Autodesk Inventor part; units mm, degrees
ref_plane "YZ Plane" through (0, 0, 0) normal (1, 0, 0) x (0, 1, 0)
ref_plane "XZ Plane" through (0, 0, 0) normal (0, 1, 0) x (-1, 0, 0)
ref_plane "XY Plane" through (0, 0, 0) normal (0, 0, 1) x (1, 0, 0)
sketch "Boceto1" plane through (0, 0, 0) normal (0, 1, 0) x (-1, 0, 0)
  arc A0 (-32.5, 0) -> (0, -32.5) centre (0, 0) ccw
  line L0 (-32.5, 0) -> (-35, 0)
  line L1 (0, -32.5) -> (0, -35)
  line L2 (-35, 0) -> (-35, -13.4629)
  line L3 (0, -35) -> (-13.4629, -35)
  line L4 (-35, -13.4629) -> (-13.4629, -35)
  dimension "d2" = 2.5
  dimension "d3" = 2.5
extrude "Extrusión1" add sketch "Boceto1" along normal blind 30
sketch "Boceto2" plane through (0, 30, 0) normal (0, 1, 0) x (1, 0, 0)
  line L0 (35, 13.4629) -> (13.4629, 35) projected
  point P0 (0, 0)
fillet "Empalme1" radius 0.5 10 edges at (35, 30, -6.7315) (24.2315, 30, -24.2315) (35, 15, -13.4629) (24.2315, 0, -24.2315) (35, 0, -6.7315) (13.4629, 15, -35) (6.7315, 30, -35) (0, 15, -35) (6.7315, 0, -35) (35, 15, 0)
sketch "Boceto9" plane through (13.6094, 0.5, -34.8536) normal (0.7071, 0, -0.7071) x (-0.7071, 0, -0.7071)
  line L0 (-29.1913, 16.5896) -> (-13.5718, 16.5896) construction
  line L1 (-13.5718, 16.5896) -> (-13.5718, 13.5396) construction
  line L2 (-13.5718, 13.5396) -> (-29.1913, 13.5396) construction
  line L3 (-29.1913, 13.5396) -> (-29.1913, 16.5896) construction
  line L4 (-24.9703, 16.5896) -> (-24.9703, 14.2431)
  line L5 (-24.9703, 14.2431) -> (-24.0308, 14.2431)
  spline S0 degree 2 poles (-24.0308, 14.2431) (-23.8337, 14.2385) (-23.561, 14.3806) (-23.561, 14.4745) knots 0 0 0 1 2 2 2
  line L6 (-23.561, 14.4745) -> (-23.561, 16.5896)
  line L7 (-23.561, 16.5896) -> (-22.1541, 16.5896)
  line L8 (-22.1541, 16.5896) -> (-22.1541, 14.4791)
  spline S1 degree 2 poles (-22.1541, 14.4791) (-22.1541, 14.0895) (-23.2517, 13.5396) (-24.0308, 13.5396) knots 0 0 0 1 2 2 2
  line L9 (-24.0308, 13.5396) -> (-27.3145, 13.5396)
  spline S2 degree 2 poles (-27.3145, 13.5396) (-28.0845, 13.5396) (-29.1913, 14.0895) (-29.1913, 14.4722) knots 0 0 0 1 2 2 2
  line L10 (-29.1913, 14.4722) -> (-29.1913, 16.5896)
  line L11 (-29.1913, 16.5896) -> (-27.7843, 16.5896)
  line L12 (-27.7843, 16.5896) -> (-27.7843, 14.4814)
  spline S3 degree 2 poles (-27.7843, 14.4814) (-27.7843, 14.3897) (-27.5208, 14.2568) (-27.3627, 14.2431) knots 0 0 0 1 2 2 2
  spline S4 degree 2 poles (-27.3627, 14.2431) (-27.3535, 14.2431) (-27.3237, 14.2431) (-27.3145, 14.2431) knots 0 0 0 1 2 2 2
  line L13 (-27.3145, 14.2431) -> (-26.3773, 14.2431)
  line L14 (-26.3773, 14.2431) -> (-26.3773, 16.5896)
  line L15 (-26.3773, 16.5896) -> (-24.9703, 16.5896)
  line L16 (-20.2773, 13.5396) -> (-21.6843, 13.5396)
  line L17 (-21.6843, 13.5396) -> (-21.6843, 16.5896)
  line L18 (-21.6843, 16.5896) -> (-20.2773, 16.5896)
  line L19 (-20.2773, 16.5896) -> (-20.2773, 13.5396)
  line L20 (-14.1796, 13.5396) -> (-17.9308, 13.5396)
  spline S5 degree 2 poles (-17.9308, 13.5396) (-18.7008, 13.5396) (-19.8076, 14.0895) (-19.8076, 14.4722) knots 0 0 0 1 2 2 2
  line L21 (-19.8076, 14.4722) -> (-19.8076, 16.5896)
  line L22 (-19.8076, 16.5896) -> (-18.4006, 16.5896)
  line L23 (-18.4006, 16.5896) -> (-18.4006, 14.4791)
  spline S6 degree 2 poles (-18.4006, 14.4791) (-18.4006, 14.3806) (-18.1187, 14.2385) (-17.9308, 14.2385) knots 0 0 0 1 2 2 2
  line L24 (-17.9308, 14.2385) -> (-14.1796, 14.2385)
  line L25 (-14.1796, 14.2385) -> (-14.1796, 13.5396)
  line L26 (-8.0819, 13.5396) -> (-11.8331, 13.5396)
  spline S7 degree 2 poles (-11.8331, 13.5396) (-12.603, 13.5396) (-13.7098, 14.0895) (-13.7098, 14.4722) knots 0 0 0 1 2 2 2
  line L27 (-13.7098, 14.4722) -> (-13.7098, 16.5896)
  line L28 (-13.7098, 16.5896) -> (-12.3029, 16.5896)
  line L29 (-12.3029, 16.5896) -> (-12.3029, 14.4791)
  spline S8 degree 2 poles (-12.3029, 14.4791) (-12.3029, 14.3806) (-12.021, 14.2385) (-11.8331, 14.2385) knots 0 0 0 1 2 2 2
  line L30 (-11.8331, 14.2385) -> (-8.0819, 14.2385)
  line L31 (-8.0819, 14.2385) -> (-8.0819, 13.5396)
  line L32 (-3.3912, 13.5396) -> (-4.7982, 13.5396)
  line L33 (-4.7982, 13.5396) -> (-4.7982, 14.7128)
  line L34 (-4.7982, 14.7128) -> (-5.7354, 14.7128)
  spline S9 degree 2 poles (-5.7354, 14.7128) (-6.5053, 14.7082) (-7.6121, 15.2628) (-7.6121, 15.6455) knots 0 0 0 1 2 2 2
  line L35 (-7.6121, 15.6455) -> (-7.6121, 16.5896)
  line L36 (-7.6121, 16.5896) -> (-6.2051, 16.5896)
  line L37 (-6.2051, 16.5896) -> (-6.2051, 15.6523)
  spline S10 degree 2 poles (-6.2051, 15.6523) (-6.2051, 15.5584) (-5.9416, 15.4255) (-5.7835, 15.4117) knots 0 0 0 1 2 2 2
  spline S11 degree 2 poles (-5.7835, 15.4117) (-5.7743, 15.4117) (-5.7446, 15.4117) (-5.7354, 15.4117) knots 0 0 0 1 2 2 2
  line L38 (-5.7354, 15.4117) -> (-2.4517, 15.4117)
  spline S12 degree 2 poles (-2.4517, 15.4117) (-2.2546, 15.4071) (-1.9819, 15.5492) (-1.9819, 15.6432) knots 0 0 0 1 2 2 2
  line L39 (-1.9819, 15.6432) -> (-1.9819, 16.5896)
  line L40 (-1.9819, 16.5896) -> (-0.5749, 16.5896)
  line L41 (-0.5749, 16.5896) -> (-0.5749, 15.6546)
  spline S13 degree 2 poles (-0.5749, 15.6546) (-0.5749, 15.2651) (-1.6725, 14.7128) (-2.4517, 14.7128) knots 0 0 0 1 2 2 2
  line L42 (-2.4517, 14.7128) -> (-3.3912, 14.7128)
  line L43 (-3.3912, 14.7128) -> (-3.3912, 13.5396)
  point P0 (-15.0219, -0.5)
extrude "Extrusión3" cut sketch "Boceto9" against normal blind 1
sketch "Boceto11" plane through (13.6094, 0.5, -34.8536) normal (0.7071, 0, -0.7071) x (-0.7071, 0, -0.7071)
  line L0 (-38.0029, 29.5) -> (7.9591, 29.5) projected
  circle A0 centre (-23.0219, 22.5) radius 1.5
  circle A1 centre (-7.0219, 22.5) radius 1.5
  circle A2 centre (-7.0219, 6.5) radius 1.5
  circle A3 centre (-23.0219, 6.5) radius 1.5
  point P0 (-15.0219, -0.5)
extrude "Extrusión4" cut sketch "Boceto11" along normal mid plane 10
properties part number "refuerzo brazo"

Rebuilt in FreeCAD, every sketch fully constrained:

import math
import FreeCAD as App
import Part
import Sketcher

V = App.Vector


def edges_at(feature, points):
    """Names of the edges that pass closest to the given points."""
    edges = feature.Shape.Edges
    near = lambda p: min(range(len(edges)), key=lambda i: edges[i].distToShape(Part.Vertex(*p))[0])
    return sorted({f"Edge{near(p) + 1}" for p in points})


def add_polygon(sketch, points):
    """Adds a closed chain of lines whose ends are joined by coincident constraints."""
    first, n = sketch.GeometryCount, len(points)
    for a, b in zip(points, points[1:] + points[:1]):
        sketch.addGeometry(Part.LineSegment(App.Vector(*a, 0), App.Vector(*b, 0)), False)
    for i in range(n):
        sketch.addConstraint(Sketcher.Constraint("Coincident", first + i, 2, first + (i + 1) % n, 1))

doc = App.newDocument("Part")
body = doc.addObject("PartDesign::Body", "Body")

# Sketch on XZ plane
sketch1 = doc.addObject("Sketcher::SketchObject", "Sketch")
body.addObject(sketch1)
sketch1.AttachmentSupport = (doc.XZ_Plane, [""])
sketch1.MapMode = "FlatFace"
sketch1.addGeometry(Part.ArcOfCircle(Part.Circle(V(0, 0, 0), V(0, 0, 1), 32.5), math.radians(-90), math.radians(0)), False)
sketch1.addGeometry(Part.LineSegment(V(32.5, 0, 0), V(35, 0, 0)), False)
sketch1.addGeometry(Part.LineSegment(V(35, 0, 0), V(35, -13.5, 0)), False)
sketch1.addGeometry(Part.LineSegment(V(35, -13.5, 0), V(13.5, -35, 0)), False)
sketch1.addGeometry(Part.LineSegment(V(13.5, -35, 0), V(0, -35, 0)), False)
sketch1.addGeometry(Part.LineSegment(V(0, -35, 0), V(0, -32.5, 0)), False)
sketch1.addConstraint(Sketcher.Constraint("Coincident", 0, 2, 1, 1))
sketch1.addConstraint(Sketcher.Constraint("Coincident", 1, 2, 2, 1))
sketch1.addConstraint(Sketcher.Constraint("Coincident", 2, 2, 3, 1))
sketch1.addConstraint(Sketcher.Constraint("Coincident", 3, 2, 4, 1))
sketch1.addConstraint(Sketcher.Constraint("Coincident", 4, 2, 5, 1))
sketch1.addConstraint(Sketcher.Constraint("Coincident", 5, 2, 0, 1))
sketch1.addConstraint(Sketcher.Constraint("Horizontal", 1))
sketch1.addConstraint(Sketcher.Constraint("Vertical", 2))
sketch1.addConstraint(Sketcher.Constraint("Horizontal", 4))
sketch1.addConstraint(Sketcher.Constraint("Vertical", 5))
sketch1.addConstraint(Sketcher.Constraint("Coincident", 0, 3, -1, 1))
sketch1.addConstraint(Sketcher.Constraint("PointOnObject", 0, 2, -1))
sketch1.addConstraint(Sketcher.Constraint("PointOnObject", 4, 2, -2))
sketch1.addConstraint(Sketcher.Constraint("Equal", 4, 2))
sketch1.addConstraint(Sketcher.Constraint("Equal", 1, 5))
sketch1.addConstraint(Sketcher.Constraint("DistanceX", 1, 1, 1, 2, 2.5))
sketch1.addConstraint(Sketcher.Constraint("Radius", 0, 32.5))
sketch1.addConstraint(Sketcher.Constraint("DistanceX", 4, 2, 4, 1, 13.463))
pad1 = doc.addObject("PartDesign::Pad", "Pad")
body.addObject(pad1)
pad1.Profile = sketch1
pad1.Length = 30
pad1.Reversed = True
doc.recompute()

fillet = doc.addObject("PartDesign::Fillet", "Fillet")
body.addObject(fillet)
fillet.Base = (pad1, edges_at(pad1, [
    (35, 30, -6.731),
    (24.232, 30, -24.232),
    (35, 15, -13.463),
    (24.232, 0, -24.232),
    (35, 0, -6.731),
    (13.463, 15, -35),
    (6.731, 30, -35),
    (0, 15, -35),
    (6.731, 0, -35),
    (35, 15, 0),
]))
fillet.Radius = 0.5

# Sketch on an angled plane
sketch2 = doc.addObject("Sketcher::SketchObject", "Sketch001")
body.addObject(sketch2)
sketch2.Placement = App.Placement(V(13.6094, 0.5, -34.8536), App.Rotation(V(-0.707106781, 0, -0.707106781), V(0, 0.999999999, 0), V(0.707106781, 0, -0.707106781), "ZXY"))
sketch2.addGeometry(Part.LineSegment(V(-24.9703, 14.2431, 0), V(-24.9703, 16.5896, 0)), False)  # 0
sketch2.addGeometry(Part.LineSegment(V(-24.9703, 16.5896, 0), V(-26.3773, 16.5896, 0)), False)  # 1
sketch2.addGeometry(Part.LineSegment(V(-26.3773, 16.5896, 0), V(-26.3773, 14.2431, 0)), False)  # 2
sketch2.addGeometry(Part.LineSegment(V(-26.3773, 14.2431, 0), V(-27.3145, 14.2431, 0)), False)  # 3
sketch2.addGeometry(Part.BSplineCurve([V(-27.3627, 14.2431, 0), V(-27.3535, 14.2431, 0), V(-27.3237, 14.2431, 0), V(-27.3145, 14.2431, 0)], [3, 1, 3], [0, 1, 2], False, 2, [1, 1, 1, 1], False), False)  # 4
sketch2.addGeometry(Part.BSplineCurve([V(-27.7843, 14.4814, 0), V(-27.7843, 14.3897, 0), V(-27.5208, 14.2568, 0), V(-27.3627, 14.2431, 0)], [3, 1, 3], [0, 1, 2], False, 2, [1, 1, 1, 1], False), False)  # 5
sketch2.addGeometry(Part.LineSegment(V(-27.7843, 14.4814, 0), V(-27.7843, 16.5896, 0)), False)  # 6
sketch2.addGeometry(Part.LineSegment(V(-27.7843, 16.5896, 0), V(-29.1913, 16.5896, 0)), False)  # 7
sketch2.addGeometry(Part.LineSegment(V(-29.1913, 16.5896, 0), V(-29.1913, 14.4722, 0)), False)  # 8
sketch2.addGeometry(Part.BSplineCurve([V(-27.3145, 13.5396, 0), V(-28.0845, 13.5396, 0), V(-29.1913, 14.0895, 0), V(-29.1913, 14.4722, 0)], [3, 1, 3], [0, 1, 2], False, 2, [1, 1, 1, 1], False), False)  # 9
sketch2.addGeometry(Part.LineSegment(V(-27.3145, 13.5396, 0), V(-24.0308, 13.5396, 0)), False)  # 10
sketch2.addGeometry(Part.BSplineCurve([V(-22.1541, 14.4791, 0), V(-22.1541, 14.0895, 0), V(-23.2517, 13.5396, 0), V(-24.0308, 13.5396, 0)], [3, 1, 3], [0, 1, 2], False, 2, [1, 1, 1, 1], False), False)  # 11
sketch2.addGeometry(Part.LineSegment(V(-22.1541, 14.4791, 0), V(-22.1541, 16.5896, 0)), False)  # 12
sketch2.addGeometry(Part.LineSegment(V(-22.1541, 16.5896, 0), V(-23.561, 16.5896, 0)), False)  # 13
sketch2.addGeometry(Part.LineSegment(V(-23.561, 16.5896, 0), V(-23.561, 14.4745, 0)), False)  # 14
sketch2.addGeometry(Part.BSplineCurve([V(-24.0308, 14.2431, 0), V(-23.8337, 14.2385, 0), V(-23.561, 14.3806, 0), V(-23.561, 14.4745, 0)], [3, 1, 3], [0, 1, 2], False, 2, [1, 1, 1, 1], False), False)  # 15
sketch2.addGeometry(Part.LineSegment(V(-24.0308, 14.2431, 0), V(-24.9703, 14.2431, 0)), False)  # 16
add_polygon(sketch2, [(-21.6843, 13.5396), (-20.2773, 13.5396), (-20.2773, 16.5896), (-21.6843, 16.5896)])  # lines 17-20
sketch2.addGeometry(Part.LineSegment(V(-17.9308, 13.5396, 0), V(-14.1796, 13.5396, 0)), False)  # 21
sketch2.addGeometry(Part.LineSegment(V(-14.1796, 13.5396, 0), V(-14.1796, 14.2385, 0)), False)  # 22
sketch2.addGeometry(Part.LineSegment(V(-14.1796, 14.2385, 0), V(-17.9308, 14.2385, 0)), False)  # 23
sketch2.addGeometry(Part.BSplineCurve([V(-18.4006, 14.4791, 0), V(-18.4006, 14.3806, 0), V(-18.1187, 14.2385, 0), V(-17.9308, 14.2385, 0)], [3, 1, 3], [0, 1, 2], False, 2, [1, 1, 1, 1], False), False)  # 24
sketch2.addGeometry(Part.LineSegment(V(-18.4006, 14.4791, 0), V(-18.4006, 16.5896, 0)), False)  # 25
sketch2.addGeometry(Part.LineSegment(V(-18.4006, 16.5896, 0), V(-19.8076, 16.5896, 0)), False)  # 26
sketch2.addGeometry(Part.LineSegment(V(-19.8076, 16.5896, 0), V(-19.8076, 14.4722, 0)), False)  # 27
sketch2.addGeometry(Part.BSplineCurve([V(-17.9308, 13.5396, 0), V(-18.7008, 13.5396, 0), V(-19.8076, 14.0895, 0), V(-19.8076, 14.4722, 0)], [3, 1, 3], [0, 1, 2], False, 2, [1, 1, 1, 1], False), False)  # 28
sketch2.addGeometry(Part.LineSegment(V(-11.8331, 13.5396, 0), V(-8.0819, 13.5396, 0)), False)  # 29
sketch2.addGeometry(Part.LineSegment(V(-8.0819, 13.5396, 0), V(-8.0819, 14.2385, 0)), False)  # 30
sketch2.addGeometry(Part.LineSegment(V(-8.0819, 14.2385, 0), V(-11.8331, 14.2385, 0)), False)  # 31
sketch2.addGeometry(Part.BSplineCurve([V(-12.3029, 14.4791, 0), V(-12.3029, 14.3806, 0), V(-12.021, 14.2385, 0), V(-11.8331, 14.2385, 0)], [3, 1, 3], [0, 1, 2], False, 2, [1, 1, 1, 1], False), False)  # 32
sketch2.addGeometry(Part.LineSegment(V(-12.3029, 14.4791, 0), V(-12.3029, 16.5896, 0)), False)  # 33
sketch2.addGeometry(Part.LineSegment(V(-12.3029, 16.5896, 0), V(-13.7098, 16.5896, 0)), False)  # 34
sketch2.addGeometry(Part.LineSegment(V(-13.7098, 16.5896, 0), V(-13.7098, 14.4722, 0)), False)  # 35
sketch2.addGeometry(Part.BSplineCurve([V(-11.8331, 13.5396, 0), V(-12.603, 13.5396, 0), V(-13.7098, 14.0895, 0), V(-13.7098, 14.4722, 0)], [3, 1, 3], [0, 1, 2], False, 2, [1, 1, 1, 1], False), False)  # 36
sketch2.addGeometry(Part.LineSegment(V(-4.7982, 13.5396, 0), V(-3.3912, 13.5396, 0)), False)  # 37
sketch2.addGeometry(Part.LineSegment(V(-3.3912, 13.5396, 0), V(-3.3912, 14.7128, 0)), False)  # 38
sketch2.addGeometry(Part.LineSegment(V(-3.3912, 14.7128, 0), V(-2.4517, 14.7128, 0)), False)  # 39
sketch2.addGeometry(Part.BSplineCurve([V(-0.5749, 15.6546, 0), V(-0.5749, 15.2651, 0), V(-1.6725, 14.7128, 0), V(-2.4517, 14.7128, 0)], [3, 1, 3], [0, 1, 2], False, 2, [1, 1, 1, 1], False), False)  # 40
sketch2.addGeometry(Part.LineSegment(V(-0.5749, 15.6546, 0), V(-0.5749, 16.5896, 0)), False)  # 41
sketch2.addGeometry(Part.LineSegment(V(-0.5749, 16.5896, 0), V(-1.9819, 16.5896, 0)), False)  # 42
sketch2.addGeometry(Part.LineSegment(V(-1.9819, 16.5896, 0), V(-1.9819, 15.6432, 0)), False)  # 43
sketch2.addGeometry(Part.BSplineCurve([V(-2.4517, 15.4117, 0), V(-2.2546, 15.4071, 0), V(-1.9819, 15.5492, 0), V(-1.9819, 15.6432, 0)], [3, 1, 3], [0, 1, 2], False, 2, [1, 1, 1, 1], False), False)  # 44
sketch2.addGeometry(Part.LineSegment(V(-2.4517, 15.4117, 0), V(-5.7354, 15.4117, 0)), False)  # 45
sketch2.addGeometry(Part.BSplineCurve([V(-5.7835, 15.4117, 0), V(-5.7743, 15.4117, 0), V(-5.7446, 15.4117, 0), V(-5.7354, 15.4117, 0)], [3, 1, 3], [0, 1, 2], False, 2, [1, 1, 1, 1], False), False)  # 46
sketch2.addGeometry(Part.BSplineCurve([V(-6.2051, 15.6523, 0), V(-6.2051, 15.5584, 0), V(-5.9416, 15.4255, 0), V(-5.7835, 15.4117, 0)], [3, 1, 3], [0, 1, 2], False, 2, [1, 1, 1, 1], False), False)  # 47
sketch2.addGeometry(Part.LineSegment(V(-6.2051, 15.6523, 0), V(-6.2051, 16.5896, 0)), False)  # 48
sketch2.addGeometry(Part.LineSegment(V(-6.2051, 16.5896, 0), V(-7.6121, 16.5896, 0)), False)  # 49
sketch2.addGeometry(Part.LineSegment(V(-7.6121, 16.5896, 0), V(-7.6121, 15.6455, 0)), False)  # 50
sketch2.addGeometry(Part.BSplineCurve([V(-5.7354, 14.7128, 0), V(-6.5053, 14.7082, 0), V(-7.6121, 15.2628, 0), V(-7.6121, 15.6455, 0)], [3, 1, 3], [0, 1, 2], False, 2, [1, 1, 1, 1], False), False)  # 51
sketch2.addGeometry(Part.LineSegment(V(-5.7354, 14.7128, 0), V(-4.7982, 14.7128, 0)), False)  # 52
sketch2.addGeometry(Part.LineSegment(V(-4.7982, 14.7128, 0), V(-4.7982, 13.5396, 0)), False)  # 53
sketch2.addConstraint(Sketcher.Constraint("Block", 4))
sketch2.addConstraint(Sketcher.Constraint("Block", 5))
sketch2.addConstraint(Sketcher.Constraint("Block", 9))
sketch2.addConstraint(Sketcher.Constraint("Block", 11))
sketch2.addConstraint(Sketcher.Constraint("Block", 15))
sketch2.addConstraint(Sketcher.Constraint("Block", 24))
sketch2.addConstraint(Sketcher.Constraint("Block", 28))
sketch2.addConstraint(Sketcher.Constraint("Block", 32))
sketch2.addConstraint(Sketcher.Constraint("Block", 36))
sketch2.addConstraint(Sketcher.Constraint("Block", 40))
sketch2.addConstraint(Sketcher.Constraint("Block", 44))
sketch2.addConstraint(Sketcher.Constraint("Block", 46))
sketch2.addConstraint(Sketcher.Constraint("Block", 47))
sketch2.addConstraint(Sketcher.Constraint("Block", 51))
sketch2.addConstraint(Sketcher.Constraint("Coincident", 0, 2, 1, 1))
sketch2.addConstraint(Sketcher.Constraint("Coincident", 1, 2, 2, 1))
sketch2.addConstraint(Sketcher.Constraint("Coincident", 2, 2, 3, 1))
sketch2.addConstraint(Sketcher.Constraint("Coincident", 3, 2, 4, 2))
sketch2.addConstraint(Sketcher.Constraint("Coincident", 5, 1, 6, 1))
sketch2.addConstraint(Sketcher.Constraint("Coincident", 6, 2, 7, 1))
sketch2.addConstraint(Sketcher.Constraint("Coincident", 7, 2, 8, 1))
sketch2.addConstraint(Sketcher.Constraint("Coincident", 8, 2, 9, 2))
sketch2.addConstraint(Sketcher.Constraint("Coincident", 9, 1, 10, 1))
sketch2.addConstraint(Sketcher.Constraint("Coincident", 10, 2, 11, 2))
sketch2.addConstraint(Sketcher.Constraint("Coincident", 11, 1, 12, 1))
sketch2.addConstraint(Sketcher.Constraint("Coincident", 12, 2, 13, 1))
sketch2.addConstraint(Sketcher.Constraint("Coincident", 13, 2, 14, 1))
sketch2.addConstraint(Sketcher.Constraint("Coincident", 14, 2, 15, 2))
sketch2.addConstraint(Sketcher.Constraint("Coincident", 15, 1, 16, 1))
sketch2.addConstraint(Sketcher.Constraint("Coincident", 16, 2, 0, 1))
sketch2.addConstraint(Sketcher.Constraint("Coincident", 21, 2, 22, 1))
sketch2.addConstraint(Sketcher.Constraint("Coincident", 22, 2, 23, 1))
sketch2.addConstraint(Sketcher.Constraint("Coincident", 23, 2, 24, 2))
sketch2.addConstraint(Sketcher.Constraint("Coincident", 24, 1, 25, 1))
sketch2.addConstraint(Sketcher.Constraint("Coincident", 25, 2, 26, 1))
sketch2.addConstraint(Sketcher.Constraint("Coincident", 26, 2, 27, 1))
sketch2.addConstraint(Sketcher.Constraint("Coincident", 27, 2, 28, 2))
sketch2.addConstraint(Sketcher.Constraint("Coincident", 28, 1, 21, 1))
sketch2.addConstraint(Sketcher.Constraint("Coincident", 29, 2, 30, 1))
sketch2.addConstraint(Sketcher.Constraint("Coincident", 30, 2, 31, 1))
sketch2.addConstraint(Sketcher.Constraint("Coincident", 31, 2, 32, 2))
sketch2.addConstraint(Sketcher.Constraint("Coincident", 32, 1, 33, 1))
sketch2.addConstraint(Sketcher.Constraint("Coincident", 33, 2, 34, 1))
sketch2.addConstraint(Sketcher.Constraint("Coincident", 34, 2, 35, 1))
sketch2.addConstraint(Sketcher.Constraint("Coincident", 35, 2, 36, 2))
sketch2.addConstraint(Sketcher.Constraint("Coincident", 36, 1, 29, 1))
sketch2.addConstraint(Sketcher.Constraint("Coincident", 37, 2, 38, 1))
sketch2.addConstraint(Sketcher.Constraint("Coincident", 38, 2, 39, 1))
sketch2.addConstraint(Sketcher.Constraint("Coincident", 39, 2, 40, 2))
sketch2.addConstraint(Sketcher.Constraint("Coincident", 40, 1, 41, 1))
sketch2.addConstraint(Sketcher.Constraint("Coincident", 41, 2, 42, 1))
sketch2.addConstraint(Sketcher.Constraint("Coincident", 42, 2, 43, 1))
sketch2.addConstraint(Sketcher.Constraint("Coincident", 43, 2, 44, 2))
sketch2.addConstraint(Sketcher.Constraint("Coincident", 44, 1, 45, 1))
sketch2.addConstraint(Sketcher.Constraint("Coincident", 45, 2, 46, 2))
sketch2.addConstraint(Sketcher.Constraint("Coincident", 47, 1, 48, 1))
sketch2.addConstraint(Sketcher.Constraint("Coincident", 48, 2, 49, 1))
sketch2.addConstraint(Sketcher.Constraint("Coincident", 49, 2, 50, 1))
sketch2.addConstraint(Sketcher.Constraint("Coincident", 50, 2, 51, 2))
sketch2.addConstraint(Sketcher.Constraint("Coincident", 51, 1, 52, 1))
sketch2.addConstraint(Sketcher.Constraint("Coincident", 52, 2, 53, 1))
sketch2.addConstraint(Sketcher.Constraint("Coincident", 53, 2, 37, 1))
sketch2.addConstraint(Sketcher.Constraint("Vertical", 0))
sketch2.addConstraint(Sketcher.Constraint("Horizontal", 1))
sketch2.addConstraint(Sketcher.Constraint("Vertical", 2))
sketch2.addConstraint(Sketcher.Constraint("Horizontal", 3))
sketch2.addConstraint(Sketcher.Constraint("Vertical", 6))
sketch2.addConstraint(Sketcher.Constraint("Horizontal", 7))
sketch2.addConstraint(Sketcher.Constraint("Vertical", 8))
sketch2.addConstraint(Sketcher.Constraint("Vertical", 12))
sketch2.addConstraint(Sketcher.Constraint("Horizontal", 13))
sketch2.addConstraint(Sketcher.Constraint("Vertical", 14))
sketch2.addConstraint(Sketcher.Constraint("Horizontal", 16))
sketch2.addConstraint(Sketcher.Constraint("Horizontal", 17))
sketch2.addConstraint(Sketcher.Constraint("Vertical", 18))
sketch2.addConstraint(Sketcher.Constraint("Horizontal", 19))
sketch2.addConstraint(Sketcher.Constraint("Vertical", 20))
sketch2.addConstraint(Sketcher.Constraint("Horizontal", 21))
sketch2.addConstraint(Sketcher.Constraint("Vertical", 22))
sketch2.addConstraint(Sketcher.Constraint("Horizontal", 23))
sketch2.addConstraint(Sketcher.Constraint("Vertical", 25))
sketch2.addConstraint(Sketcher.Constraint("Horizontal", 26))
sketch2.addConstraint(Sketcher.Constraint("Vertical", 27))
sketch2.addConstraint(Sketcher.Constraint("Horizontal", 29))
sketch2.addConstraint(Sketcher.Constraint("Vertical", 30))
sketch2.addConstraint(Sketcher.Constraint("Horizontal", 31))
sketch2.addConstraint(Sketcher.Constraint("Vertical", 33))
sketch2.addConstraint(Sketcher.Constraint("Horizontal", 34))
sketch2.addConstraint(Sketcher.Constraint("Vertical", 35))
sketch2.addConstraint(Sketcher.Constraint("Horizontal", 37))
sketch2.addConstraint(Sketcher.Constraint("Vertical", 38))
sketch2.addConstraint(Sketcher.Constraint("Horizontal", 39))
sketch2.addConstraint(Sketcher.Constraint("Vertical", 41))
sketch2.addConstraint(Sketcher.Constraint("Horizontal", 42))
sketch2.addConstraint(Sketcher.Constraint("Vertical", 43))
sketch2.addConstraint(Sketcher.Constraint("Vertical", 48))
sketch2.addConstraint(Sketcher.Constraint("Horizontal", 49))
sketch2.addConstraint(Sketcher.Constraint("Vertical", 50))
sketch2.addConstraint(Sketcher.Constraint("Horizontal", 52))
sketch2.addConstraint(Sketcher.Constraint("Vertical", 53))
sketch2.addConstraint(Sketcher.Constraint("DistanceY", 18, 1, 18, 2, 3.05))
sketch2.addConstraint(Sketcher.Constraint("DistanceX", 30, 2, 42, 2, 6.1))
sketch2.addConstraint(Sketcher.Constraint("DistanceX", 1, 2, 1, 1, 1.407))
sketch2.addConstraint(Sketcher.Constraint("DistanceX", 17, 1, 17, 2, 1.407))
sketch2.addConstraint(Sketcher.Constraint("DistanceX", 37, 1, 37, 2, 1.407))
sketch2.addConstraint(Sketcher.Constraint("DistanceY", 14, 2, 14, 1, 2.115))
sketch2.addConstraint(Sketcher.Constraint("DistanceY", 41, 1, 41, 2, 0.935))
sketch2.addConstraint(Sketcher.Constraint("DistanceY", 50, 2, 50, 1, 0.944))
sketch2.addConstraint(Sketcher.Constraint("DistanceY", 10, 2, 0, 2, 3.05))
sketch2.addConstraint(Sketcher.Constraint("DistanceY", 10, 2, 6, 2, 3.05))
sketch2.addConstraint(Sketcher.Constraint("DistanceY", 17, 2, 12, 2, 3.05))
sketch2.addConstraint(Sketcher.Constraint("DistanceY", 17, 2, 25, 2, 3.05))
sketch2.addConstraint(Sketcher.Constraint("DistanceY", 21, 2, 33, 2, 3.05))
sketch2.addConstraint(Sketcher.Constraint("DistanceY", 37, 2, 33, 2, 3.05))
sketch2.addConstraint(Sketcher.Constraint("DistanceX", 3, 2, 3, 1, 0.9372))
sketch2.addConstraint(Sketcher.Constraint("DistanceX", 21, 1, 21, 2, 3.7512))
sketch2.addConstraint(Sketcher.Constraint("DistanceX", 39, 1, 39, 2, 0.9395))
sketch2.addConstraint(Sketcher.Constraint("DistanceX", 16, 2, 17, 2, 4.693))
pocket1 = doc.addObject("PartDesign::Pocket", "Pocket")
body.addObject(pocket1)
pocket1.Profile = sketch2
pocket1.Length = 1

# Sketch on an angled plane
sketch3 = doc.addObject("Sketcher::SketchObject", "Sketch002")
body.addObject(sketch3)
sketch3.Placement = App.Placement(V(13.6094, 0.5, -34.8536), App.Rotation(V(-0.707106781, 0, -0.707106781), V(0, 0.999999999, 0), V(0.707106781, 0, -0.707106781), "ZXY"))
sketch3.addGeometry(Part.Circle(V(-23, 22.5, 0), V(0, 0, 1), 1.5), False)
sketch3.addGeometry(Part.Circle(V(-7, 22.5, 0), V(0, 0, 1), 1.5), False)
sketch3.addGeometry(Part.Circle(V(-7, 6.5, 0), V(0, 0, 1), 1.5), False)
sketch3.addGeometry(Part.Circle(V(-23, 6.5, 0), V(0, 0, 1), 1.5), False)
sketch3.addConstraint(Sketcher.Constraint("Equal", 0, 1))
sketch3.addConstraint(Sketcher.Constraint("Equal", 1, 2))
sketch3.addConstraint(Sketcher.Constraint("Equal", 2, 3))
sketch3.addConstraint(Sketcher.Constraint("Horizontal", 0, 3, 1, 3))
sketch3.addConstraint(Sketcher.Constraint("Horizontal", 2, 3, 3, 3))
sketch3.addConstraint(Sketcher.Constraint("Vertical", 1, 3, 2, 3))
sketch3.addConstraint(Sketcher.Constraint("Vertical", 0, 3, 3, 3))
sketch3.addConstraint(Sketcher.Constraint("Diameter", 0, 3.0))
sketch3.addConstraint(Sketcher.Constraint("DistanceX", 0, 3, 1, 3, 16.0))
sketch3.addConstraint(Sketcher.Constraint("DistanceY", 2, 3, 1, 3, 16.0))
sketch3.addConstraint(Sketcher.Constraint("DistanceY", -1, 1, 0, 3, 22.5))
sketch3.addConstraint(Sketcher.Constraint("DistanceX", 0, 3, -1, 1, 23.022))
pocket2 = doc.addObject("PartDesign::Pocket", "Pocket001")
body.addObject(pocket2)
pocket2.Profile = sketch3
pocket2.Length = 10
pocket2.Midplane = True

doc.recompute()
